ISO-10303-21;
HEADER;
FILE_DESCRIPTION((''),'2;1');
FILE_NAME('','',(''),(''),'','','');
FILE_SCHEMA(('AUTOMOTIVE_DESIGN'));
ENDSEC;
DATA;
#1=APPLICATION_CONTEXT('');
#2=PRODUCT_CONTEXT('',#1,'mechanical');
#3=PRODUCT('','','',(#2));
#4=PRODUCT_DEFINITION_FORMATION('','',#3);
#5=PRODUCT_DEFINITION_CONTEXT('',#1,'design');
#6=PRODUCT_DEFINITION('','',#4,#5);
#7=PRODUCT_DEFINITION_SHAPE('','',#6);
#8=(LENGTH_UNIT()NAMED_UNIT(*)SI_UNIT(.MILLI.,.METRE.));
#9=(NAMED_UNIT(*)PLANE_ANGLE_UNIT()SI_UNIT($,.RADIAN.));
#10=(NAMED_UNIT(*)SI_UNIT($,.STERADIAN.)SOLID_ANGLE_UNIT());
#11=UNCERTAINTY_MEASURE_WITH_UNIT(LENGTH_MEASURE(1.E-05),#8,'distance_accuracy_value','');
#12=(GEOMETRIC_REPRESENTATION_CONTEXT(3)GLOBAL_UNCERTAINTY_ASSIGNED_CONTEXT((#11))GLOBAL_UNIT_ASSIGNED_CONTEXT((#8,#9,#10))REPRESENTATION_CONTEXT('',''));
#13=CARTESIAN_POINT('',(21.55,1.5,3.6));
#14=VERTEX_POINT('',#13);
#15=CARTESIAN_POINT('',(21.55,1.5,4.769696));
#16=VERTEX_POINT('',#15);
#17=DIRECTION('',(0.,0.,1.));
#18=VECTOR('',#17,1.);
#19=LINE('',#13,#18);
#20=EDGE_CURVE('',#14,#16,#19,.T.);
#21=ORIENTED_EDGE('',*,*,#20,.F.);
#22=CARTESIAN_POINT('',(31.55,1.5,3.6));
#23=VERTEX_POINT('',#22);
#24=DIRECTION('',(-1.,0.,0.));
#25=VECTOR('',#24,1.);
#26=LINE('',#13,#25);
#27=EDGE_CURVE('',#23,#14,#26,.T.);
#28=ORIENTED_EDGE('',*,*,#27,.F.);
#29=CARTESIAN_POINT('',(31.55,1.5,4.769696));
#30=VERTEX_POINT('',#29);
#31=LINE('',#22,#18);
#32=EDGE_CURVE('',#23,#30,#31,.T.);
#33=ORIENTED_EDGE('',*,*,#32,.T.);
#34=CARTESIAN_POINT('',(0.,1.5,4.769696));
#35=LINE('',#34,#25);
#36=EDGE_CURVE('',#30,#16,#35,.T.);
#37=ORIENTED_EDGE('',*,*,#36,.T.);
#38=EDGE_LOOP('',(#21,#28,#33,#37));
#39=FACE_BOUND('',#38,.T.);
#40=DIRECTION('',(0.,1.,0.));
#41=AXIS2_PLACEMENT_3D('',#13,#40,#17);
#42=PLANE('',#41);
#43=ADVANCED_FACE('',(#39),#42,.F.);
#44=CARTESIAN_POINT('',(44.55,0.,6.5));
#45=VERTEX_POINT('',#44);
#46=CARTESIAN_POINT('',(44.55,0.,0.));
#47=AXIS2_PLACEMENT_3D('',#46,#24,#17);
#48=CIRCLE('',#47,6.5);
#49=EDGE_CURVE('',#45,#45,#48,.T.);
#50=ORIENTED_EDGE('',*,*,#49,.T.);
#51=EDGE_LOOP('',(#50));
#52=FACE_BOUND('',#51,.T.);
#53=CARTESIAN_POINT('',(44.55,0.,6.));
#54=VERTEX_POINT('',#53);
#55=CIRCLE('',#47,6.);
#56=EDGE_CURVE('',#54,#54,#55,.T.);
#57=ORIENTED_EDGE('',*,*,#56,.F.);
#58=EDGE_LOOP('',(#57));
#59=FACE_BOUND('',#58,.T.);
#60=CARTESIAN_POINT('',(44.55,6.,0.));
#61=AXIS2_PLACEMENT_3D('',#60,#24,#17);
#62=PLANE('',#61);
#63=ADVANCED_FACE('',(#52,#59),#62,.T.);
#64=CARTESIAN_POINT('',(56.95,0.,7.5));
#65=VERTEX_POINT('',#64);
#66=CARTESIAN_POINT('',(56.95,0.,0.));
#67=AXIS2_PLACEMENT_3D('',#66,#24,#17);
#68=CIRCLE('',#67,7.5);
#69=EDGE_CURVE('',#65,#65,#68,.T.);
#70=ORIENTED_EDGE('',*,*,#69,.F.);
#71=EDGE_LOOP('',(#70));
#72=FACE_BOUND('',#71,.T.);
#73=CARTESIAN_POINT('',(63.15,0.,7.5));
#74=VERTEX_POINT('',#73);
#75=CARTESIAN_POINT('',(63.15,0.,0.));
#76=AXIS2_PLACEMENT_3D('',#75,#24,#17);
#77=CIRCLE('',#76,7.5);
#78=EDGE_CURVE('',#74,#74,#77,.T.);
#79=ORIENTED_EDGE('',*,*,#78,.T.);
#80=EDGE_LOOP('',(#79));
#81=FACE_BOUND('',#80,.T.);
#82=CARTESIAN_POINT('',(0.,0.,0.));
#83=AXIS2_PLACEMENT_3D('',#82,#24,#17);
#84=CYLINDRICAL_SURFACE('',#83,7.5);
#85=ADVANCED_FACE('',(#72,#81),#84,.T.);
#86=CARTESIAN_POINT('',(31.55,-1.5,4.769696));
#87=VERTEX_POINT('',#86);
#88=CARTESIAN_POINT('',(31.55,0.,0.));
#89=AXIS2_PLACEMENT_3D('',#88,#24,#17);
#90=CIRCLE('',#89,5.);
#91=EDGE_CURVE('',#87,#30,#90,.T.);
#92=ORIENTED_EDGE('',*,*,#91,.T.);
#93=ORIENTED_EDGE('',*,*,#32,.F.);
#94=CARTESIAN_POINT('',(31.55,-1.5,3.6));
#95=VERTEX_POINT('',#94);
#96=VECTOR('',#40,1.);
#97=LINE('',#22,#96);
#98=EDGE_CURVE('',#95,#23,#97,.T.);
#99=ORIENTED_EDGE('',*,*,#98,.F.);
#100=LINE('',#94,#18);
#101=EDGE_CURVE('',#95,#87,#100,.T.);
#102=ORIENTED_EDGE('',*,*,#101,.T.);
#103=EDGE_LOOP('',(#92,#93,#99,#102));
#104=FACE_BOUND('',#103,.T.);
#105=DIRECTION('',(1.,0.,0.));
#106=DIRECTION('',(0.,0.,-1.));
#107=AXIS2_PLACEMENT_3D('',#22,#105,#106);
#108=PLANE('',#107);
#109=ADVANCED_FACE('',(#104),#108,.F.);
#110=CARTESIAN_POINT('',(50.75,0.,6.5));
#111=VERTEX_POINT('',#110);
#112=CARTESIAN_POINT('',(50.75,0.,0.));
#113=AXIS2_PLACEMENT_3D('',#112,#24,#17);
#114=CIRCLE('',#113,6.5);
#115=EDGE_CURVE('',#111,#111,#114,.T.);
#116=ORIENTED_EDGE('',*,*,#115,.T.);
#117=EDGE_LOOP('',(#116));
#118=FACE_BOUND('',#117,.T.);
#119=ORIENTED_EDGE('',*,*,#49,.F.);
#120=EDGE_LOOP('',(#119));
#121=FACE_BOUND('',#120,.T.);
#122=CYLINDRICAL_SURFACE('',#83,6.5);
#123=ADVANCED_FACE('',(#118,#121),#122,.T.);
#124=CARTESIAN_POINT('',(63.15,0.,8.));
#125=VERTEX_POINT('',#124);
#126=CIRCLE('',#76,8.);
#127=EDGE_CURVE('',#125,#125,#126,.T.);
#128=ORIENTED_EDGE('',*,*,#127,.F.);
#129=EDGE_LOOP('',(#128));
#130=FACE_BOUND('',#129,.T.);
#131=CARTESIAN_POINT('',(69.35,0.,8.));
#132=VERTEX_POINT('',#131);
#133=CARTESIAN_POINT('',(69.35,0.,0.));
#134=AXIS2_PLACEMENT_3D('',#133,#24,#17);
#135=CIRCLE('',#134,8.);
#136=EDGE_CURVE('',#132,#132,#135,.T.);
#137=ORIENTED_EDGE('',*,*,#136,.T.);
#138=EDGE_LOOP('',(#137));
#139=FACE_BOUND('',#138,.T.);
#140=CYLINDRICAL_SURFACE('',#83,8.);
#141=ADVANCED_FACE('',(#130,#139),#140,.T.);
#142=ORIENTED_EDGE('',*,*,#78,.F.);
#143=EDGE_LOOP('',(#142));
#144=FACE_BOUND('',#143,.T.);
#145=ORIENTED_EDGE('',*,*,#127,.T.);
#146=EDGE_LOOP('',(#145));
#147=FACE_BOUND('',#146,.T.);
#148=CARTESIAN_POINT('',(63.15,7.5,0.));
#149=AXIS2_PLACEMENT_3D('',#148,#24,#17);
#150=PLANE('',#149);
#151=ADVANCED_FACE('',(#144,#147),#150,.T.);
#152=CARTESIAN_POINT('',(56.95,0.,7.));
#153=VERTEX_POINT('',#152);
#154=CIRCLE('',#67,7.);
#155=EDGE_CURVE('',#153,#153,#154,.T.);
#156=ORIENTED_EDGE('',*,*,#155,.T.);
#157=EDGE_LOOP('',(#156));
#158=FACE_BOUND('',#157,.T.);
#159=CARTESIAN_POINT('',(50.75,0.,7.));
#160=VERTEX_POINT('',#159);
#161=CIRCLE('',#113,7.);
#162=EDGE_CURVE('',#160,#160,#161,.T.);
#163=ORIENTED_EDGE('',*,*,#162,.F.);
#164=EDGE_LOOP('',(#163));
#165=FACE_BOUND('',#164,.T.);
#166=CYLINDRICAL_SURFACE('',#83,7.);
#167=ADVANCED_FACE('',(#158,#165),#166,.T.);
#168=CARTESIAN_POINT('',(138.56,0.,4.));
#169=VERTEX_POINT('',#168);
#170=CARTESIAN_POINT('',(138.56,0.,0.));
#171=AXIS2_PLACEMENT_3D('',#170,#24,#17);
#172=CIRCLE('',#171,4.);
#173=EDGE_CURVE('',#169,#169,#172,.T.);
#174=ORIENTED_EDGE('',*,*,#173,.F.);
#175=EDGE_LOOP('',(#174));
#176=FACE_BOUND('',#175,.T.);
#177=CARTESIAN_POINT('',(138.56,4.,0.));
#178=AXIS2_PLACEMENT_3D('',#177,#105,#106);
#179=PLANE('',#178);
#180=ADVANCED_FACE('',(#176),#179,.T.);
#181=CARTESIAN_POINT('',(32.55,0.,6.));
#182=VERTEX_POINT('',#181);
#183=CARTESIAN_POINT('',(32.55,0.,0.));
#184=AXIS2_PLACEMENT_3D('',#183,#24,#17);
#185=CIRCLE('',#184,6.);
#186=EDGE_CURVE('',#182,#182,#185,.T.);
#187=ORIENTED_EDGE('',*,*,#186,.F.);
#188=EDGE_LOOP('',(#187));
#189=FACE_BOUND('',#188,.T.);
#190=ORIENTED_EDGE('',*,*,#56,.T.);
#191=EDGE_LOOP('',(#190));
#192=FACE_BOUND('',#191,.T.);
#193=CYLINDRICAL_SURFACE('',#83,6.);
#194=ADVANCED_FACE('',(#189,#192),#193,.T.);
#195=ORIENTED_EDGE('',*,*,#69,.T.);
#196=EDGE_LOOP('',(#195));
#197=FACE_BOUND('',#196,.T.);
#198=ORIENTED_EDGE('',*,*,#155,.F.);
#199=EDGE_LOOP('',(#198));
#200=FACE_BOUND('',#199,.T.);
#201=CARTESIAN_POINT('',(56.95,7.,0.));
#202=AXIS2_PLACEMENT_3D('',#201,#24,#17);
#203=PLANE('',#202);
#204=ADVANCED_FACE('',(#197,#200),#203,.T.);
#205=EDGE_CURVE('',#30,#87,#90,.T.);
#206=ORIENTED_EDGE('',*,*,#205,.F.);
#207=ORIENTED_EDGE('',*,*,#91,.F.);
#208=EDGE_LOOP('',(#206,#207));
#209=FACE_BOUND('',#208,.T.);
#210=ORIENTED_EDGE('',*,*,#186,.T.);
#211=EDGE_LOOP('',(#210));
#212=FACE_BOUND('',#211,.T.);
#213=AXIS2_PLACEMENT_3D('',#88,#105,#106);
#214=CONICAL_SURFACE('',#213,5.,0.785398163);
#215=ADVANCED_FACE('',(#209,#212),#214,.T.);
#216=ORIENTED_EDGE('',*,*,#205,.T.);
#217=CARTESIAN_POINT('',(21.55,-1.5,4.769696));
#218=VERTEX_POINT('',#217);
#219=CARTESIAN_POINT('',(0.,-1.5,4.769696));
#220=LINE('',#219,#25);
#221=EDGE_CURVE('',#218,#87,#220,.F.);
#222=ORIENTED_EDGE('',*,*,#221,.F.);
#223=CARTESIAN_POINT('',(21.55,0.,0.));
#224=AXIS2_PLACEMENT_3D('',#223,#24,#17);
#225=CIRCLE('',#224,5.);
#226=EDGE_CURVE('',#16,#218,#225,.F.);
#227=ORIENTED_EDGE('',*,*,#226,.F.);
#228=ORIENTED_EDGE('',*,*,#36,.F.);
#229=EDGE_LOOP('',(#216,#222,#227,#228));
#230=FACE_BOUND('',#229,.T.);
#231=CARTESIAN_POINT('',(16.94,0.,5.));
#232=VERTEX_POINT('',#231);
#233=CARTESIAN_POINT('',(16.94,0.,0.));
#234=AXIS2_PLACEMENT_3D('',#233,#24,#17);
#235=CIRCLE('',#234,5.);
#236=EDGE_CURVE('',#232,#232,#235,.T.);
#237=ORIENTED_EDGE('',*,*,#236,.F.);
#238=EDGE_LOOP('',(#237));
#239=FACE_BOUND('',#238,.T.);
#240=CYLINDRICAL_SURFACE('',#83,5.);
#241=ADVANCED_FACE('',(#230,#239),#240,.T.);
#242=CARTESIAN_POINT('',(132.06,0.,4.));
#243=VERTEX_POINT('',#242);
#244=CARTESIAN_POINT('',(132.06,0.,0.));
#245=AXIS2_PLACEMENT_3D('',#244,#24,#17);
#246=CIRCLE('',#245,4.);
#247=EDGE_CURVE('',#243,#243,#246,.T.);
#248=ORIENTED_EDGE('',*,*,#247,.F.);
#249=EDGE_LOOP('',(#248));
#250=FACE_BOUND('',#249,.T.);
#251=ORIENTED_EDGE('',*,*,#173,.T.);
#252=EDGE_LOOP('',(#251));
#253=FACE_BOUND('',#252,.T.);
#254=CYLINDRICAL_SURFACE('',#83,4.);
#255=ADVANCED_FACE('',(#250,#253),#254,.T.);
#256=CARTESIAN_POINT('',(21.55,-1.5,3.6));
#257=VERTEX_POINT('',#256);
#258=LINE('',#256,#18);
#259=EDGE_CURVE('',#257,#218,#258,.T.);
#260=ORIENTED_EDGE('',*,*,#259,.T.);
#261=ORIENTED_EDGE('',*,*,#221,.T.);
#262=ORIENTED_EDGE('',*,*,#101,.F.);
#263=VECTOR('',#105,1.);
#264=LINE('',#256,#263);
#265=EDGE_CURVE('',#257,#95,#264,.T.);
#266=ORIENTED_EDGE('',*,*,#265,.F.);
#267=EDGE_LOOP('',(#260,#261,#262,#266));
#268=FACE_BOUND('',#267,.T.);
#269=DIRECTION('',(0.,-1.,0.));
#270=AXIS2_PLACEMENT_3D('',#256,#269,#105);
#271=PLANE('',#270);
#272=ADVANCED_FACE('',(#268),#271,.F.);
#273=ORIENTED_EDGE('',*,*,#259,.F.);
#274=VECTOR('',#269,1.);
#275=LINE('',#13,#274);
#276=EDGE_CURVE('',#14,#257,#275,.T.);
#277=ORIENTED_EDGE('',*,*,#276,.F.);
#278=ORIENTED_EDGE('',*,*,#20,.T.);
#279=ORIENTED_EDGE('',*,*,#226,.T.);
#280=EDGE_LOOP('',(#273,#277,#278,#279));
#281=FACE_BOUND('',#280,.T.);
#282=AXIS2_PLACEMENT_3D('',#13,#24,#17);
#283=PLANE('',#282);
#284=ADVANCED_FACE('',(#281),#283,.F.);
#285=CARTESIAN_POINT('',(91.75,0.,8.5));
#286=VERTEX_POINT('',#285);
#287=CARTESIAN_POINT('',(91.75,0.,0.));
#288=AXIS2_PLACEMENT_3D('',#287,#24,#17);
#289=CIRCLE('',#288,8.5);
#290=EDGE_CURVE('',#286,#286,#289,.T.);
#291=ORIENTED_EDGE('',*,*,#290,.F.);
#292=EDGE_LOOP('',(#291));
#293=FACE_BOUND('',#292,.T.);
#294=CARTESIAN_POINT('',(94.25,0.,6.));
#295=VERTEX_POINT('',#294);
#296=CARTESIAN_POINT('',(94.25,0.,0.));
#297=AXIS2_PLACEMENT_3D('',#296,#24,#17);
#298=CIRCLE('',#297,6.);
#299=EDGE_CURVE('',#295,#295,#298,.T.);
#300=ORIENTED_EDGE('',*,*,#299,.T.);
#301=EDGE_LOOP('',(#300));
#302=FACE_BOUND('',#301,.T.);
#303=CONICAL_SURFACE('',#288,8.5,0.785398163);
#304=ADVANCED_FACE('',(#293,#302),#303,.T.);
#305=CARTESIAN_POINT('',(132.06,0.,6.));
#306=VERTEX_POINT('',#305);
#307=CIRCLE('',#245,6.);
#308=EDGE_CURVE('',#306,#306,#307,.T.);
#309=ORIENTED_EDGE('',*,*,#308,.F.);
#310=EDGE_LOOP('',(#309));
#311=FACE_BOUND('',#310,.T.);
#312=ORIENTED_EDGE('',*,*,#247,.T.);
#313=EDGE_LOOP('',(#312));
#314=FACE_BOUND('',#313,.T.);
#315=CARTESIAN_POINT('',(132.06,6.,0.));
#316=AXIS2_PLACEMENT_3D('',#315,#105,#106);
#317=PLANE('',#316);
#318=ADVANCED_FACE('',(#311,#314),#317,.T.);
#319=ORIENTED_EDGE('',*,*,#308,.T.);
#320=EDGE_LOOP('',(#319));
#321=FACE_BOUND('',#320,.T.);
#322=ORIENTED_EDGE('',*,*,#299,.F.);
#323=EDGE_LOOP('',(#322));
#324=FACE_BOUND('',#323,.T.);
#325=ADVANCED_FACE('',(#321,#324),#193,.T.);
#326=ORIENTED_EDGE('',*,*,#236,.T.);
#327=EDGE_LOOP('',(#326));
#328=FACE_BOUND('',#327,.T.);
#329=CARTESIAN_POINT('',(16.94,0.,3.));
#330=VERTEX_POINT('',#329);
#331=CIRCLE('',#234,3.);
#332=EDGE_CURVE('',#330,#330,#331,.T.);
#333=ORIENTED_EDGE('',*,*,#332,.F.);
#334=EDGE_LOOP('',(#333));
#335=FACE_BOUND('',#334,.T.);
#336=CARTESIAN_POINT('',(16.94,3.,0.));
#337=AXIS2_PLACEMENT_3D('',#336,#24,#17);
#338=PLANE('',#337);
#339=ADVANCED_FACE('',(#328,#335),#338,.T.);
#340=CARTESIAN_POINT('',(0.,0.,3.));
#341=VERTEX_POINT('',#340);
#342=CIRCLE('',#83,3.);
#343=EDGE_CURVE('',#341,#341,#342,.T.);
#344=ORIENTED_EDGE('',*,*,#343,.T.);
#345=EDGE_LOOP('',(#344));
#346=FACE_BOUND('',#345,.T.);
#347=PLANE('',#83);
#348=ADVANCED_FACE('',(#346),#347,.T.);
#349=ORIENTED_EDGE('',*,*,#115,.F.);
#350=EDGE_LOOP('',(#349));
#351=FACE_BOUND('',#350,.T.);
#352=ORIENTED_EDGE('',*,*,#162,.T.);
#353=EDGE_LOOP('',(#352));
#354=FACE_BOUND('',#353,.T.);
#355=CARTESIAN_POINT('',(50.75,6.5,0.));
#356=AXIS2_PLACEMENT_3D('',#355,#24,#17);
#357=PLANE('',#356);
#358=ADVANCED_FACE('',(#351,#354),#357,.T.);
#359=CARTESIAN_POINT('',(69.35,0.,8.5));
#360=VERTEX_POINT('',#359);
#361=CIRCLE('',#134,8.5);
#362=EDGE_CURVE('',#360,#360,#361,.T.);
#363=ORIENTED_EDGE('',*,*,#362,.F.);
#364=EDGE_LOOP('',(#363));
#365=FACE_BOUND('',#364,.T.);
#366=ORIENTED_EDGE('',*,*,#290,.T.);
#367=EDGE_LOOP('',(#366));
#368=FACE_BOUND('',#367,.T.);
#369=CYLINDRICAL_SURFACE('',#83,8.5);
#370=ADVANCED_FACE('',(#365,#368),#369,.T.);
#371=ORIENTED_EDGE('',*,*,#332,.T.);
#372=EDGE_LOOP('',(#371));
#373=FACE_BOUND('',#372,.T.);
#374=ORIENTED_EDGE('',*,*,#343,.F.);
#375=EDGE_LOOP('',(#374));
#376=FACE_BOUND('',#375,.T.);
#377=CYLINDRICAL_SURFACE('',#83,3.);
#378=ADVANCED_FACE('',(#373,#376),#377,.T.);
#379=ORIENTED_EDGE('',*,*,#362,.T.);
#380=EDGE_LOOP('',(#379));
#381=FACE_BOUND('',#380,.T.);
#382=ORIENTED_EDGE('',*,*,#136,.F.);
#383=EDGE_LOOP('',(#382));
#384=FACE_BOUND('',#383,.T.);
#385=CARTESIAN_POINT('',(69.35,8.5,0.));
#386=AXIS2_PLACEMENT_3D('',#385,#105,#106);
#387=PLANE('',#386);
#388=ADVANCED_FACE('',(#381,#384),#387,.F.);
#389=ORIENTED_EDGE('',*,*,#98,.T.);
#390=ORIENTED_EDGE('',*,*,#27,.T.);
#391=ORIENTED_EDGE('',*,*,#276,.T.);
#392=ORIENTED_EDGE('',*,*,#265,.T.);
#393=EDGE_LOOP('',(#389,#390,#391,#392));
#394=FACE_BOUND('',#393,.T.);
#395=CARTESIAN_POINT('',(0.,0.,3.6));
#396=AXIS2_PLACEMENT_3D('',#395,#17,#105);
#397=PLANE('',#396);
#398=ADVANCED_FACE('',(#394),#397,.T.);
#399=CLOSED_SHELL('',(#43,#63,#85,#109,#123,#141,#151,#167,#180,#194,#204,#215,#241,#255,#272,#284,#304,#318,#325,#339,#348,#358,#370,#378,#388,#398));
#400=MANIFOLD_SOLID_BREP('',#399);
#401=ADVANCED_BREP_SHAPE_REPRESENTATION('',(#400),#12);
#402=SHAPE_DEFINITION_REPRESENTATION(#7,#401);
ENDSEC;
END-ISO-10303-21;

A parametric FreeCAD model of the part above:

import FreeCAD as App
import Part
import Sketcher
from FreeCAD import Vector
Q = App.Units.Quantity


def add_polygon(sketch, points):
    """Adds a closed chain of lines whose ends are joined by coincident constraints."""
    first, n = sketch.GeometryCount, len(points)
    for a, b in zip(points, points[1:] + points[:1]):
        sketch.addGeometry(Part.LineSegment(App.Vector(*a, 0), App.Vector(*b, 0)), False)
    for i in range(n):
        sketch.addConstraint(Sketcher.Constraint("Coincident", first + i, 2, first + (i + 1) % n, 1))

doc = App.newDocument("Part")
body = doc.addObject("PartDesign::Body", "Body")

# Sketch on XY plane
sketch1 = body.newObject("Sketcher::SketchObject", "Sketch")
sketch1.AttachmentSupport = (doc.getObject("XY_Plane"), [""])
sketch1.MapMode = "FlatFace"
add_polygon(sketch1, [(0, 3), (0, 0), (138.6, 0), (138.6, 4), (132.1, 4), (132.1, 6), (94.2, 6), (91.8, 8.5), (69.3, 8.5), (69.3, 8), (63.1, 8), (63.1, 7.5), (57, 7.5), (57, 7), (50.8, 7), (50.8, 6.5), (44.5, 6.5), (44.5, 6), (32.5, 6), (31.6, 5), (16.9, 5), (16.9, 3)])  # lines 0-21
sketch1.addConstraint(Sketcher.Constraint("Vertical", 0))
sketch1.addConstraint(Sketcher.Constraint("Horizontal", 1))
sketch1.addConstraint(Sketcher.Constraint("Vertical", 2))
sketch1.addConstraint(Sketcher.Constraint("Horizontal", 3))
sketch1.addConstraint(Sketcher.Constraint("Vertical", 4))
sketch1.addConstraint(Sketcher.Constraint("Horizontal", 5))
sketch1.addConstraint(Sketcher.Constraint("Horizontal", 7))
sketch1.addConstraint(Sketcher.Constraint("Vertical", 8))
sketch1.addConstraint(Sketcher.Constraint("Horizontal", 9))
sketch1.addConstraint(Sketcher.Constraint("Vertical", 10))
sketch1.addConstraint(Sketcher.Constraint("Horizontal", 11))
sketch1.addConstraint(Sketcher.Constraint("Vertical", 12))
sketch1.addConstraint(Sketcher.Constraint("Horizontal", 13))
sketch1.addConstraint(Sketcher.Constraint("Vertical", 14))
sketch1.addConstraint(Sketcher.Constraint("Horizontal", 15))
sketch1.addConstraint(Sketcher.Constraint("Vertical", 16))
sketch1.addConstraint(Sketcher.Constraint("Horizontal", 17))
sketch1.addConstraint(Sketcher.Constraint("Horizontal", 19))
sketch1.addConstraint(Sketcher.Constraint("Vertical", 20))
sketch1.addConstraint(Sketcher.Constraint("Horizontal", 21))
sketch1.addConstraint(Sketcher.Constraint("Coincident", 0, 2, -1, 1))
sketch1.addConstraint(Sketcher.Constraint("Perpendicular", 6, 18))
sketch1.addConstraint(Sketcher.Constraint("Horizontal", 5, 2, 16, 2))
sketch1.addConstraint(Sketcher.Constraint("Equal", 9, 11))
sketch1.addConstraint(Sketcher.Constraint("Equal", 11, 13))
sketch1.addConstraint(Sketcher.Constraint("Equal", 13, 15))
sketch1.addConstraint(Sketcher.Constraint("Equal", 8, 10))
sketch1.addConstraint(Sketcher.Constraint("Equal", 10, 12))
sketch1.addConstraint(Sketcher.Constraint("Equal", 12, 14))
sketch1.addConstraint(Sketcher.Constraint("Equal", 14, 16))
sketch1.addConstraint(Sketcher.Constraint("Equal", 4, 20))
sketch1.addConstraint(Sketcher.Constraint("DistanceX", 17, 2, 17, 1, Q("12 mm")))
sketch1.addConstraint(Sketcher.Constraint("DistanceY", 0, 2, 0, 1, Q("3 mm")))
sketch1.addConstraint(Sketcher.Constraint("DistanceY", 2, 1, 2, 2, Q("4 mm")))
sketch1.addConstraint(Sketcher.Constraint("DistanceY", 4, 1, 4, 2, Q("2 mm")))
sketch1.addConstraint(Sketcher.Constraint("Angle", 6, Q("135 deg")))
sketch1.addConstraint(Sketcher.Constraint("DistanceX", 3, 2, 3, 1, Q("6.5 mm")))
sketch1.addConstraint(Sketcher.Constraint("DistanceX", 7, 2, 7, 1, Q("22.4 mm")))
sketch1.addConstraint(Sketcher.Constraint("DistanceX", 9, 2, 9, 1, Q("6.2 mm")))
sketch1.addConstraint(Sketcher.Constraint("DistanceY", 8, 2, 8, 1, Q("0.5 mm")))
sketch1.addConstraint(Sketcher.Constraint("DistanceX", 1, 1, 1, 2, Q("138.56 mm")))
sketch1.addConstraint(Sketcher.Constraint("DistanceX", 5, 2, 5, 1, Q("37.81 mm")))
sketch1.addConstraint(Sketcher.Constraint("DistanceX", 19, 2, 19, 1, Q("14.61 mm")))
revolution = body.newObject("PartDesign::Revolution", "Revolution")
revolution.Profile = sketch1
revolution.ReferenceAxis = (sketch1, ["H_Axis"])
revolution.Angle = 360

# Sketch on XY plane
sketch2 = body.newObject("Sketcher::SketchObject", "Sketch001")
sketch2.AttachmentSupport = (doc.getObject("XY_Plane"), [""])
sketch2.MapMode = "FlatFace"
sketch2.AttachmentOffset = App.Placement(Vector(0, 0, 5), App.Rotation())
add_polygon(sketch2, [(21.6, 1.5), (21.6, -1.5), (31.6, -1.5), (31.6, 1.5)])  # lines 0-3
sketch2.addConstraint(Sketcher.Constraint("Vertical", 0))
sketch2.addConstraint(Sketcher.Constraint("Horizontal", 1))
sketch2.addConstraint(Sketcher.Constraint("Vertical", 2))
sketch2.addConstraint(Sketcher.Constraint("Horizontal", 3))
sketch2.addConstraint(Sketcher.Constraint("DistanceX", 1, 1, 1, 2, Q("10 mm")))
sketch2.addConstraint(Sketcher.Constraint("DistanceY", 0, 2, 0, 1, Q("3 mm")))
sketch2.addConstraint(Sketcher.Constraint("DistanceY", 0, 2, -1, 1, Q("1.5 mm")))
sketch2.addConstraint(Sketcher.Constraint("DistanceX", -1, 1, 0, 2, Q("21.55 mm")))
pocket1 = body.newObject("PartDesign::Pocket", "Pocket")
pocket1.Profile = sketch2
pocket1.Length = 1.4

doc.recompute()
